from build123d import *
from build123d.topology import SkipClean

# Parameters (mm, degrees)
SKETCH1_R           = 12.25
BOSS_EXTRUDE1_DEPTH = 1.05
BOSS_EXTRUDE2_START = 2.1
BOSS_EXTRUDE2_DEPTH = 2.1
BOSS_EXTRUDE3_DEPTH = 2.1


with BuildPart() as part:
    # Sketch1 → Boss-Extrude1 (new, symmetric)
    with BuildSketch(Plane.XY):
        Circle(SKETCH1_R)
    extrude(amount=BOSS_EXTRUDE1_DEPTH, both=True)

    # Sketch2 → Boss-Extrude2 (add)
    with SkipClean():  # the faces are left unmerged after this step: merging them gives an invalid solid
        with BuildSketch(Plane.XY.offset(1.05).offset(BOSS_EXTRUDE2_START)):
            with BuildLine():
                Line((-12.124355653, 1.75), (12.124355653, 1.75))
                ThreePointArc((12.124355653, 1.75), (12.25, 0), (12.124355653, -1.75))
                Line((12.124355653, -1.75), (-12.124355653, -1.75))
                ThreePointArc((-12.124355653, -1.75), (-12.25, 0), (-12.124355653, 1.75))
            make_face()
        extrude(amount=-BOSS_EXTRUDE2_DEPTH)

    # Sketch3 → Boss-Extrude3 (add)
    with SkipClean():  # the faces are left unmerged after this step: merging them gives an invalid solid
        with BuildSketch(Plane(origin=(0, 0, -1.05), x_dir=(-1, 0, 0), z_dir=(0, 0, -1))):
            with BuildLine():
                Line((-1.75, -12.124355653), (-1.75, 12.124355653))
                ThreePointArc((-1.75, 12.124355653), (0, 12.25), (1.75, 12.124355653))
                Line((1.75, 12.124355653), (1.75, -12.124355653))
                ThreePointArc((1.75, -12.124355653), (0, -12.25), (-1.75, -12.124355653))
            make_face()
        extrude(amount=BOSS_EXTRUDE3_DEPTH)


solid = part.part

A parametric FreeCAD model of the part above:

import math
import FreeCAD as App
import Part
import Sketcher

V = App.Vector
Q = App.Units.Quantity

doc = App.newDocument("Part")
body = doc.addObject("PartDesign::Body", "Body")

sketch1 = body.newObject("Sketcher::SketchObject", "Sketch")
sketch1.AttachmentSupport = (doc.getObject("XY_Plane"), [""])
sketch1.MapMode = "FlatFace"
sketch1.addGeometry(Part.Circle(V(0, 0, 0), V(0, 0, 1), 12.25), False)
sketch1.addConstraint([
    Sketcher.Constraint("Coincident", 0, 3, -1, 1),
    Sketcher.Constraint("Diameter", 0, Q("24.5 mm")),
])
pad1 = body.newObject("PartDesign::Pad", "Pad")
pad1.Profile = sketch1
pad1.Length = 2.1
pad1.Midplane = True

sketch2 = body.newObject("Sketcher::SketchObject", "Sketch001")
sketch2.AttachmentSupport = (doc.getObject("XY_Plane"), [""])
sketch2.MapMode = "FlatFace"
sketch2.AttachmentOffset = App.Placement(V(0, 0, 3.15), App.Rotation())
sketch2.addGeometry([
    Part.LineSegment(V(12.124356, 1.75, 0), V(-12.124356, 1.75, 0)),
    Part.ArcOfCircle(Part.Circle(V(0, 0, 0), V(0, 0, 1), 12.25), math.radians(171.786789), math.radians(188.213211)),
    Part.LineSegment(V(-12.124356, -1.75, 0), V(12.124356, -1.75, 0)),
    Part.ArcOfCircle(Part.Circle(V(0, 0, 0), V(0, 0, 1), 12.25), math.radians(-8.213211), math.radians(8.213211)),
], False)
sketch2.addConstraint([
    Sketcher.Constraint("Coincident", 0, 2, 1, 1),
    Sketcher.Constraint("Coincident", 1, 2, 2, 1),
    Sketcher.Constraint("Coincident", 2, 2, 3, 1),
    Sketcher.Constraint("Coincident", 3, 2, 0, 1),
    Sketcher.Constraint("Horizontal", 0),
    Sketcher.Constraint("Horizontal", 2),
    Sketcher.Constraint("Coincident", 1, 3, -1, 1),
    Sketcher.Constraint("Coincident", 3, 3, -1, 1),
    Sketcher.Constraint("Equal", 1, 3),
    Sketcher.Constraint("Vertical", 0, 2, 1, 2),
    Sketcher.Constraint("Radius", 1, Q("12.25 mm")),
    Sketcher.Constraint("DistanceY", 1, 2, 0, 2, Q("3.5 mm")),
])
pad2 = body.newObject("PartDesign::Pad", "Pad001")
pad2.Profile = sketch2
pad2.Length = 2.1
pad2.Reversed = True

sketch3 = body.newObject("Sketcher::SketchObject", "Sketch002")
sketch3.AttachmentSupport = (doc.getObject("XY_Plane"), [""])
sketch3.MapMode = "FlatFace"
sketch3.AttachmentOffset = App.Placement(V(0, 0, -1.05), App.Rotation())
sketch3.addGeometry([
    Part.LineSegment(V(1.75, 12.124356, 0), V(1.75, -12.124356, 0)),
    Part.ArcOfCircle(Part.Circle(V(0, 0, 0), V(0, 0, 1), 12.25), math.radians(-98.213211), math.radians(-81.786789)),
    Part.LineSegment(V(-1.75, -12.124356, 0), V(-1.75, 12.124356, 0)),
    Part.ArcOfCircle(Part.Circle(V(0, 0, 0), V(0, 0, 1), 12.25), math.radians(81.786789), math.radians(98.213211)),
], False)
sketch3.addConstraint([
    Sketcher.Constraint("Coincident", 0, 2, 1, 2),
    Sketcher.Constraint("Coincident", 1, 1, 2, 1),
    Sketcher.Constraint("Coincident", 2, 2, 3, 2),
    Sketcher.Constraint("Coincident", 3, 1, 0, 1),
    Sketcher.Constraint("Vertical", 0),
    Sketcher.Constraint("Vertical", 2),
    Sketcher.Constraint("Coincident", 1, 3, -1, 1),
    Sketcher.Constraint("Coincident", 3, 3, -1, 1),
    Sketcher.Constraint("Equal", 1, 3),
    Sketcher.Constraint("Horizontal", 0, 2, 1, 1),
    Sketcher.Constraint("Radius", 1, Q("12.25 mm")),
    Sketcher.Constraint("DistanceX", 1, 1, 0, 2, Q("3.5 mm")),
])
pad3 = body.newObject("PartDesign::Pad", "Pad002")
pad3.Profile = sketch3
pad3.Length = 2.1
pad3.Reversed = True

doc.recompute()
